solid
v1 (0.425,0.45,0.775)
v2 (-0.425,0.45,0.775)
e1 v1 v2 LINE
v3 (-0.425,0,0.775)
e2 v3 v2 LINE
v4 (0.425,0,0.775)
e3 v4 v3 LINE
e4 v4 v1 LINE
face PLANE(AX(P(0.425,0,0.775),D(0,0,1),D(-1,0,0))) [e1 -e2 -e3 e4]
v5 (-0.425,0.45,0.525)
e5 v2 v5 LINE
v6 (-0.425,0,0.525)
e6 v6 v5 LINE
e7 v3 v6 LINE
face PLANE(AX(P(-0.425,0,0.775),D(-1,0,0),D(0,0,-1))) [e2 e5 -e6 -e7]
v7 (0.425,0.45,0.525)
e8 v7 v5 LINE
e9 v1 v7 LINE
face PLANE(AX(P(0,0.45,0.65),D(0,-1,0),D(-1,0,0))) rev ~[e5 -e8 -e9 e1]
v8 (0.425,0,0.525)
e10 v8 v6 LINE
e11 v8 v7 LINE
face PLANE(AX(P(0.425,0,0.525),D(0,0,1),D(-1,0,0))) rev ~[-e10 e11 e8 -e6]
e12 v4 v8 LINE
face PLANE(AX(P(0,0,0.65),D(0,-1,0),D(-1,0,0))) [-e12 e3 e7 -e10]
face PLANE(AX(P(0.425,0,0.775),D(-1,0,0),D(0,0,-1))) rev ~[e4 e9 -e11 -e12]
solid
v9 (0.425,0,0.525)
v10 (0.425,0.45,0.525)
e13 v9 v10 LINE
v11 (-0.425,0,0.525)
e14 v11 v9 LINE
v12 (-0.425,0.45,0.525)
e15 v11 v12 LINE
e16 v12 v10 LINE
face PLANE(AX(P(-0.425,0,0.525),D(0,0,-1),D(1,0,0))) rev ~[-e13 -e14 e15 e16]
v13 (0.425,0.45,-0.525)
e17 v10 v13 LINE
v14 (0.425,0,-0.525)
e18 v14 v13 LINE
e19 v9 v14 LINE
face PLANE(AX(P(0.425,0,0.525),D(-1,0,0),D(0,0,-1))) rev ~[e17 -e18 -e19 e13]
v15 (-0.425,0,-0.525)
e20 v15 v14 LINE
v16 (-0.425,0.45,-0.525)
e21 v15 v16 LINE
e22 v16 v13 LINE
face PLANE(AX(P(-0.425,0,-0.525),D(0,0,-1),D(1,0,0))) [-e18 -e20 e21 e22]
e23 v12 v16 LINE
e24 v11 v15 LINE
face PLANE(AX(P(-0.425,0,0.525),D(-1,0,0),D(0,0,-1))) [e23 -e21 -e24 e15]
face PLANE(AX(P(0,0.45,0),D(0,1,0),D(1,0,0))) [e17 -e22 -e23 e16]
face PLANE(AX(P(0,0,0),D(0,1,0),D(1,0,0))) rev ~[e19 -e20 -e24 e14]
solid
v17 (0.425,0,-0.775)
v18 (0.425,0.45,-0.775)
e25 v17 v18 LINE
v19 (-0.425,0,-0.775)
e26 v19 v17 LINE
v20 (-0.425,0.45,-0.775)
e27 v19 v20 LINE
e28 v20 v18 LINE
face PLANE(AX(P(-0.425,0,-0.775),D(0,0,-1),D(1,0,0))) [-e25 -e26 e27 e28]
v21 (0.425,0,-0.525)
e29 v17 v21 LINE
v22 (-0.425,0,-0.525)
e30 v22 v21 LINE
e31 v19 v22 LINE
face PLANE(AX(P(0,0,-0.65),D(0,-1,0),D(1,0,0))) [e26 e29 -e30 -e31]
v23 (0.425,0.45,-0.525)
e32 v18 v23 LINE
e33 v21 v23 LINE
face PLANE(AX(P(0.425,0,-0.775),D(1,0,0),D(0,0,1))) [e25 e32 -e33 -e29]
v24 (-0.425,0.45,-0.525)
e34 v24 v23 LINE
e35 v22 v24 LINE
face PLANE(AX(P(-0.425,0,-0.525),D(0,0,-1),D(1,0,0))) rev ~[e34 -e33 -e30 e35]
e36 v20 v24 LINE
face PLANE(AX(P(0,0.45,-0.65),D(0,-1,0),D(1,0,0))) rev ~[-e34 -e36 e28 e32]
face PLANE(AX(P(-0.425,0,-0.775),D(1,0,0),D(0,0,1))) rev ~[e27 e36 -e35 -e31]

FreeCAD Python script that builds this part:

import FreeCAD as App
import Part
import Sketcher
from FreeCAD import Vector

doc = App.newDocument("Part")
params = doc.addObject("Spreadsheet::Sheet", "Params")
for row, (alias, value) in enumerate([
    ("sketch1_width", "0.85 mm"),
    ("sketch1_height", "1.05 mm"),
    ("pad1_length", "0.45 mm"),
    ("sketch2_width", "0.85 mm"),
    ("sketch2_height", "0.25 mm"),
    ("pad2_length", "0.45 mm"),
    ("sketch3_width", "0.85 mm"),
    ("sketch3_height", "0.25 mm"),
    ("pad3_length", "0.45 mm"),
], start=1):
    params.set(f"A{row}", alias)
    params.set(f"B{row}", "=" + value)
    params.setAlias(f"B{row}", alias)

body = doc.addObject("PartDesign::Body", "Body")

# Sketch on XZ plane
sketch1 = body.newObject("Sketcher::SketchObject", "Sketch")
sketch1.AttachmentSupport = (doc.getObject("XZ_Plane"), [""])
sketch1.MapMode = "FlatFace"
sketch1.addGeometry([
    Part.LineSegment(Vector(-0.425, -0.525, 0), Vector(-0.425, 0.525, 0)),
    Part.LineSegment(Vector(-0.425, 0.525, 0), Vector(0.425, 0.525, 0)),
    Part.LineSegment(Vector(0.425, 0.525, 0), Vector(0.425, -0.525, 0)),
    Part.LineSegment(Vector(0.425, -0.525, 0), Vector(-0.425, -0.525, 0)),
], False)
sketch1.addConstraint([
    Sketcher.Constraint("Coincident", 0, 2, 1, 1),
    Sketcher.Constraint("Coincident", 1, 2, 2, 1),
    Sketcher.Constraint("Coincident", 2, 2, 3, 1),
    Sketcher.Constraint("Coincident", 3, 2, 0, 1),
    Sketcher.Constraint("Vertical", 0),
    Sketcher.Constraint("Horizontal", 1),
    Sketcher.Constraint("Vertical", 2),
    Sketcher.Constraint("Horizontal", 3),
    Sketcher.Constraint("Symmetric", 0, 2, 2, 2, -1, 1),
    Sketcher.Constraint("DistanceX", 1, 1, 1, 2, 0.85),
    Sketcher.Constraint("DistanceY", 0, 1, 0, 2, 1.05),
])
sketch1.setExpression("Constraints[9]", "Params.sketch1_width")
sketch1.setExpression("Constraints[10]", "Params.sketch1_height")
pad1 = body.newObject("PartDesign::Pad", "Pad")
pad1.Profile = sketch1
pad1.setExpression("Length", "Params.pad1_length")
pad1.Reversed = True
body2 = doc.addObject("PartDesign::Body", "Body001")

# Sketch on XZ plane
sketch2 = body2.newObject("Sketcher::SketchObject", "Sketch001")
sketch2.AttachmentSupport = (doc.getObject("XZ_Plane001"), [""])
sketch2.MapMode = "FlatFace"
sketch2.addGeometry([
    Part.LineSegment(Vector(0.425, 0.525, 0), Vector(0.425, 0.775, 0)),
    Part.LineSegment(Vector(0.425, 0.775, 0), Vector(-0.425, 0.775, 0)),
    Part.LineSegment(Vector(-0.425, 0.775, 0), Vector(-0.425, 0.525, 0)),
    Part.LineSegment(Vector(-0.425, 0.525, 0), Vector(0.425, 0.525, 0)),
], False)
sketch2.addConstraint([
    Sketcher.Constraint("Coincident", 0, 2, 1, 1),
    Sketcher.Constraint("Coincident", 1, 2, 2, 1),
    Sketcher.Constraint("Coincident", 2, 2, 3, 1),
    Sketcher.Constraint("Coincident", 3, 2, 0, 1),
    Sketcher.Constraint("Vertical", 0),
    Sketcher.Constraint("Horizontal", 1),
    Sketcher.Constraint("Vertical", 2),
    Sketcher.Constraint("Horizontal", 3),
    Sketcher.Constraint("DistanceX", 1, 2, 1, 1, 0.85),
    Sketcher.Constraint("DistanceY", 0, 1, 0, 2, 0.25),
    Sketcher.Constraint("DistanceX", -1, 1, 0, 2, 0.425),
    Sketcher.Constraint("DistanceY", -1, 1, 0, 2, 0.775),
])
sketch2.setExpression("Constraints[8]", "Params.sketch2_width")
sketch2.setExpression("Constraints[9]", "Params.sketch2_height")
pad2 = body2.newObject("PartDesign::Pad", "Pad001")
pad2.Profile = sketch2
pad2.setExpression("Length", "Params.pad2_length")
pad2.Reversed = True
body3 = doc.addObject("PartDesign::Body", "Body002")

# Sketch on XZ plane
sketch3 = body3.newObject("Sketcher::SketchObject", "Sketch002")
sketch3.AttachmentSupport = (doc.getObject("XZ_Plane002"), [""])
sketch3.MapMode = "FlatFace"
sketch3.addGeometry([
    Part.LineSegment(Vector(-0.425, -0.525, 0), Vector(-0.425, -0.775, 0)),
    Part.LineSegment(Vector(-0.425, -0.775, 0), Vector(0.425, -0.775, 0)),
    Part.LineSegment(Vector(0.425, -0.775, 0), Vector(0.425, -0.525, 0)),
    Part.LineSegment(Vector(0.425, -0.525, 0), Vector(-0.425, -0.525, 0)),
], False)
sketch3.addConstraint([
    Sketcher.Constraint("Coincident", 0, 2, 1, 1),
    Sketcher.Constraint("Coincident", 1, 2, 2, 1),
    Sketcher.Constraint("Coincident", 2, 2, 3, 1),
    Sketcher.Constraint("Coincident", 3, 2, 0, 1),
    Sketcher.Constraint("Vertical", 0),
    Sketcher.Constraint("Horizontal", 1),
    Sketcher.Constraint("Vertical", 2),
    Sketcher.Constraint("Horizontal", 3),
    Sketcher.Constraint("DistanceX", 1, 1, 1, 2, 0.85),
    Sketcher.Constraint("DistanceY", 0, 2, 0, 1, 0.25),
    Sketcher.Constraint("DistanceX", 0, 2, -1, 1, 0.425),
    Sketcher.Constraint("DistanceY", 0, 2, -1, 1, 0.775),
])
sketch3.setExpression("Constraints[8]", "Params.sketch3_width")
sketch3.setExpression("Constraints[9]", "Params.sketch3_height")
pad3 = body3.newObject("PartDesign::Pad", "Pad002")
pad3.Profile = sketch3
pad3.setExpression("Length", "Params.pad3_length")
pad3.Reversed = True

doc.recompute()
